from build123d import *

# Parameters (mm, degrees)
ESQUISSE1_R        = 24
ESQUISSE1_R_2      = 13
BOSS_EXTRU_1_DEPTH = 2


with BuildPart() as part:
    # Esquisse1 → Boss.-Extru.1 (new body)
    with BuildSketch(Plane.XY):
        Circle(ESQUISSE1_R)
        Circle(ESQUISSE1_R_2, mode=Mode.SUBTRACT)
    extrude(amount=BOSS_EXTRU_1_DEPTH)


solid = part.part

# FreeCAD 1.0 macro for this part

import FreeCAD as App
import Part
import Sketcher
from FreeCAD import Vector

doc = App.newDocument("Part")
body = doc.addObject("PartDesign::Body", "Body")

sketch1 = body.newObject("Sketcher::SketchObject", "Sketch")
sketch1.AttachmentSupport = (doc.getObject("XY_Plane"), [""])
sketch1.MapMode = "FlatFace"
sketch1.addGeometry([
    Part.Circle(Vector(0, 0, 0), Vector(0, 0, 1), 24),
    Part.Circle(Vector(0, 0, 0), Vector(0, 0, 1), 13),
], False)
sketch1.addConstraint([
    Sketcher.Constraint("Coincident", 0, 3, -1, 1),
    Sketcher.Constraint("Coincident", 1, 3, -1, 1),
    Sketcher.Constraint("Diameter", 0, 48.0),
    Sketcher.Constraint("Diameter", 1, 26.0),
])
pad1 = body.newObject("PartDesign::Pad", "Pad")
pad1.Profile = sketch1
pad1.Length = 2

doc.recompute()
